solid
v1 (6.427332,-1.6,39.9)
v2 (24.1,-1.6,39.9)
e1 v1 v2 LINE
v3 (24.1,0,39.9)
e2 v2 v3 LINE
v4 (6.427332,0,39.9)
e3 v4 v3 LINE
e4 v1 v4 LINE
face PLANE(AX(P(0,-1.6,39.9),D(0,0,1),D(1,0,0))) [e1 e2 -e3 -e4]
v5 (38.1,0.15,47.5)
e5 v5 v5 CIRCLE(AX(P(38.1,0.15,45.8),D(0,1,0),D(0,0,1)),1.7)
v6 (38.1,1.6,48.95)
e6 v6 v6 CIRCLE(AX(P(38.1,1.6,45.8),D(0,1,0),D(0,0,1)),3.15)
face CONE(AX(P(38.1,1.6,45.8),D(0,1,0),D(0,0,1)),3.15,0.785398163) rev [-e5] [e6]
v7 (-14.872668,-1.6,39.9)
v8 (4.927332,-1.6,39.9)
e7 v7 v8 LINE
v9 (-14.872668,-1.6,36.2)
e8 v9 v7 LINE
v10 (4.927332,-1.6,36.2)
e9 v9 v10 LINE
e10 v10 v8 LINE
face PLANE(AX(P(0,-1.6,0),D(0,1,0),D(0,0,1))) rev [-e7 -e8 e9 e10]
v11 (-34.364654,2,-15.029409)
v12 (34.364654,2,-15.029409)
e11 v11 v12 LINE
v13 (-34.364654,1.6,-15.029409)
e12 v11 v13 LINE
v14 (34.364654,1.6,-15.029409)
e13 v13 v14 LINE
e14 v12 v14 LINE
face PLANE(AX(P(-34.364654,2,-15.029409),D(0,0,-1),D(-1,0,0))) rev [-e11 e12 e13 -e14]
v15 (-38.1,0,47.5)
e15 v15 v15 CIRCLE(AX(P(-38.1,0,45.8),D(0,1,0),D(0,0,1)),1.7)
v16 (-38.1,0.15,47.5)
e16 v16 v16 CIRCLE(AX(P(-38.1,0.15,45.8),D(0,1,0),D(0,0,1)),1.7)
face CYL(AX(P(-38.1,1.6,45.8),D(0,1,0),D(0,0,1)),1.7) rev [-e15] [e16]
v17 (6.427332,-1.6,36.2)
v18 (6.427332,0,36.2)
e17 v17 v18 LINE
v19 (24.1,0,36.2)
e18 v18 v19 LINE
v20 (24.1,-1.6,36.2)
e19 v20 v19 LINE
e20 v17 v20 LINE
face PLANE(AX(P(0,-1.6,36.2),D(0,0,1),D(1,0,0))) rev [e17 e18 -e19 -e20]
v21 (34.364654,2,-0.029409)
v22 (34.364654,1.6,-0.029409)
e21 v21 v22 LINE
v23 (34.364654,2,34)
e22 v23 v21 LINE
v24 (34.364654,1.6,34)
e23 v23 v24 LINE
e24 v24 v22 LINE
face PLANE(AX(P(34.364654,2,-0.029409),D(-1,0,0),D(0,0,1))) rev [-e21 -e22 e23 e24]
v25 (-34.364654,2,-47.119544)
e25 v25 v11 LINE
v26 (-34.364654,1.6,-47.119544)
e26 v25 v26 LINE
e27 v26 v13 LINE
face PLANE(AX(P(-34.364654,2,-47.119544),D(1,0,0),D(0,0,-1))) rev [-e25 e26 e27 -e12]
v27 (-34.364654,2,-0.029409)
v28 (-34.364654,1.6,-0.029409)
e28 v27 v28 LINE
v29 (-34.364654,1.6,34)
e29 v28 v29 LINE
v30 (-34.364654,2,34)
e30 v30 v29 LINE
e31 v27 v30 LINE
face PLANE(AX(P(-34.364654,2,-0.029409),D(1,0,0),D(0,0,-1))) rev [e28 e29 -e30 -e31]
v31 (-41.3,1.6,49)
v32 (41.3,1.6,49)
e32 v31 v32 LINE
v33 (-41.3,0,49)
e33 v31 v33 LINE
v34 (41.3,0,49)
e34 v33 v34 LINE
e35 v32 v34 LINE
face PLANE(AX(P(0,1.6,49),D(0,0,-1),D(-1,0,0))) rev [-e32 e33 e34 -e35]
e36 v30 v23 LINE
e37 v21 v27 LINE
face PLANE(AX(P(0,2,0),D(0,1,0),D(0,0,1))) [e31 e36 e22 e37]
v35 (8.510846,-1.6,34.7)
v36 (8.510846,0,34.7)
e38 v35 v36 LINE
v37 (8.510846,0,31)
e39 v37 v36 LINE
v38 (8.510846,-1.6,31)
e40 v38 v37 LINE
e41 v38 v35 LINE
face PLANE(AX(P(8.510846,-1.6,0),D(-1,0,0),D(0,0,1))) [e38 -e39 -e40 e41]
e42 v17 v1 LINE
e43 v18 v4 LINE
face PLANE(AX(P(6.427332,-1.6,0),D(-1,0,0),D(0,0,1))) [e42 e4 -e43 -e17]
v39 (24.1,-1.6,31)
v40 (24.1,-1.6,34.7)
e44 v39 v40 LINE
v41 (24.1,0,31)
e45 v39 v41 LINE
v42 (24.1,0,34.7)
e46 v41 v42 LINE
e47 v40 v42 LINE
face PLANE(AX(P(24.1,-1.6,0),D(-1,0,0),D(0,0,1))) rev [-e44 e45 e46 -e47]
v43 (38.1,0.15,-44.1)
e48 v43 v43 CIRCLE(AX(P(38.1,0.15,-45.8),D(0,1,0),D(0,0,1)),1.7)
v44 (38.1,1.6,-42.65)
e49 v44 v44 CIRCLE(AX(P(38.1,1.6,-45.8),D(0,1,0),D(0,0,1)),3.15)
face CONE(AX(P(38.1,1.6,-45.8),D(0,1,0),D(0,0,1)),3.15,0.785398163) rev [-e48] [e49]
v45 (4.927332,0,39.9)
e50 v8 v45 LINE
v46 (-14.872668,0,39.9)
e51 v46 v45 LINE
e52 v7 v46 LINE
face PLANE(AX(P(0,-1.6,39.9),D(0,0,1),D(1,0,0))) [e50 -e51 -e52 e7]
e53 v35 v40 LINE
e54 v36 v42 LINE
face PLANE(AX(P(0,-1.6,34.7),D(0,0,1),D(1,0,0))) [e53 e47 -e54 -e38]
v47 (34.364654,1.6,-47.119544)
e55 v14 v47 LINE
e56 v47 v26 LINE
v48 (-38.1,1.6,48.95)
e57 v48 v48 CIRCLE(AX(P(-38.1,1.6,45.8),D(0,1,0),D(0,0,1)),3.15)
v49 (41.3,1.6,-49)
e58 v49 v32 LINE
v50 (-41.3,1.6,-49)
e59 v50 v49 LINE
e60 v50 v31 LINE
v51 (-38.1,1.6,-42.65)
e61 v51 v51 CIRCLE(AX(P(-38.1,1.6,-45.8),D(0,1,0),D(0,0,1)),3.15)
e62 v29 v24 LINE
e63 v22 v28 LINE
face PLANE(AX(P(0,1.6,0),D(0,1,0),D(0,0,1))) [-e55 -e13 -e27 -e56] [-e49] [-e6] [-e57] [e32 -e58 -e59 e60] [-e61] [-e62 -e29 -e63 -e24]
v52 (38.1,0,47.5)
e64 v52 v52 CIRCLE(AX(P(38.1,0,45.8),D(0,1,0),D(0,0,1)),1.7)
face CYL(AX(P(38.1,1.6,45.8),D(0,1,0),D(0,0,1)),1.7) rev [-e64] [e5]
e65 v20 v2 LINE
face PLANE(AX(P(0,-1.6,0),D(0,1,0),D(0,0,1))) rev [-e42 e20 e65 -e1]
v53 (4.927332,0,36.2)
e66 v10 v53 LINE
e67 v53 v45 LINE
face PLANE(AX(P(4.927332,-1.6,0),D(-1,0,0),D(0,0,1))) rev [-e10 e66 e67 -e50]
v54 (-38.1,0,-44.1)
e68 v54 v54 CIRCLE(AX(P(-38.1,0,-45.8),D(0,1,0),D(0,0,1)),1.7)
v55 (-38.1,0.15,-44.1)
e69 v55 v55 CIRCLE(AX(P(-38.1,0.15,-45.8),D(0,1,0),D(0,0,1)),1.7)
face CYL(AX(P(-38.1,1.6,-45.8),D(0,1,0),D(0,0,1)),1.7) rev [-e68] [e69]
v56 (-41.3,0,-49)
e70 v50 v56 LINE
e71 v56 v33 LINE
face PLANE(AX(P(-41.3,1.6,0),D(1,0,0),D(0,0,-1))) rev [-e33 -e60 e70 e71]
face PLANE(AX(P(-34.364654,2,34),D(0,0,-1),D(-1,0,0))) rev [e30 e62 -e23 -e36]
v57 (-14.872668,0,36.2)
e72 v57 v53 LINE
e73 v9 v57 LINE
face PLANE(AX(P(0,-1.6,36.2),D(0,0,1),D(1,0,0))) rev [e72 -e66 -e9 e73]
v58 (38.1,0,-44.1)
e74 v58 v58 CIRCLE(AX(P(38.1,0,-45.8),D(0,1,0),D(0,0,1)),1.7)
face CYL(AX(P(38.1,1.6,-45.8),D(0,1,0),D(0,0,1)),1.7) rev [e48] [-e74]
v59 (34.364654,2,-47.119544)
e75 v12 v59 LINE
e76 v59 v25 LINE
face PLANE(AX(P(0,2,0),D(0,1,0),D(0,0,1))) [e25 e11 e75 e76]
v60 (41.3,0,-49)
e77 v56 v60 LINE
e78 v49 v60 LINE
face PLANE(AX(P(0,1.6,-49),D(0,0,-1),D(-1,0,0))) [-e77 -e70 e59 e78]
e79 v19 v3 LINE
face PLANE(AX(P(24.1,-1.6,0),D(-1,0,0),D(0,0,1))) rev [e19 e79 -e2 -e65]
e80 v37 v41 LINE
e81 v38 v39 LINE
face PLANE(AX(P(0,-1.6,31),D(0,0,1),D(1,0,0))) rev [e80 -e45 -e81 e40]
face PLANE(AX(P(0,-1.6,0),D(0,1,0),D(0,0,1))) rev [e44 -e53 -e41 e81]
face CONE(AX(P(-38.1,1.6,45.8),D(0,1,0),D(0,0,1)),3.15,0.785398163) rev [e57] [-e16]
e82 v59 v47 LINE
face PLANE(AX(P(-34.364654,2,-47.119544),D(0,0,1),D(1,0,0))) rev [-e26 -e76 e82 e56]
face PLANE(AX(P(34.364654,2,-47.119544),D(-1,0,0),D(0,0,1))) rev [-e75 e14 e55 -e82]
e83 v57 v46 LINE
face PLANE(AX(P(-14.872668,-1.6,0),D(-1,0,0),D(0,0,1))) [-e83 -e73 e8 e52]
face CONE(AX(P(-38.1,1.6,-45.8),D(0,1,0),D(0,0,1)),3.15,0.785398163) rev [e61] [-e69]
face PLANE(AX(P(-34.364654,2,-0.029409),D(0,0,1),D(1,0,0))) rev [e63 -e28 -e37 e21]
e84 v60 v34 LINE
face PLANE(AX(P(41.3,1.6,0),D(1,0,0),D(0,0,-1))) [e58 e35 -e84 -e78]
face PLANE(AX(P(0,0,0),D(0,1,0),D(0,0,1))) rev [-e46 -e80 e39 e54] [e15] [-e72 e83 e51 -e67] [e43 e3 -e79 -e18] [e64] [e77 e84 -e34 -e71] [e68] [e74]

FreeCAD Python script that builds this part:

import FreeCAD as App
import Part
import Sketcher
from FreeCAD import Vector

doc = App.newDocument("Part")
body = doc.addObject("PartDesign::Body", "Body")

# Sketch on XZ plane
sketch1 = body.newObject("Sketcher::SketchObject", "Sketch")
sketch1.AttachmentSupport = (doc.getObject("XZ_Plane"), [""])
sketch1.MapMode = "FlatFace"
sketch1.addGeometry([
    Part.LineSegment(Vector(-41.3, -49, 0), Vector(-41.3, 49, 0)),  # 0
    Part.LineSegment(Vector(-41.3, 49, 0), Vector(41.3, 49, 0)),  # 1
    Part.LineSegment(Vector(41.3, 49, 0), Vector(41.3, -49, 0)),  # 2
    Part.LineSegment(Vector(41.3, -49, 0), Vector(-41.3, -49, 0)),  # 3
    Part.Circle(Vector(-38.1, 45.8, 0), Vector(0, 0, 1), 1.6),  # 4
    Part.Circle(Vector(38.1, 45.8, 0), Vector(0, 0, 1), 1.6),  # 5
    Part.Circle(Vector(-38.1, -45.8, 0), Vector(0, 0, 1), 1.6),  # 6
    Part.Circle(Vector(38.1, -45.8, 0), Vector(0, 0, 1), 1.6),  # 7
], False)
sketch1.addConstraint([
    Sketcher.Constraint("Coincident", 0, 2, 1, 1),
    Sketcher.Constraint("Coincident", 1, 2, 2, 1),
    Sketcher.Constraint("Coincident", 2, 2, 3, 1),
    Sketcher.Constraint("Coincident", 3, 2, 0, 1),
    Sketcher.Constraint("Vertical", 0),
    Sketcher.Constraint("Horizontal", 1),
    Sketcher.Constraint("Vertical", 2),
    Sketcher.Constraint("Horizontal", 3),
    Sketcher.Constraint("Equal", 4, 5),
    Sketcher.Constraint("Equal", 5, 6),
    Sketcher.Constraint("Equal", 6, 7),
    Sketcher.Constraint("Symmetric", 5, 3, 6, 3, -1, 1),
    Sketcher.Constraint("Symmetric", 4, 3, 7, 3, -1, 1),
    Sketcher.Constraint("Symmetric", 0, 2, 2, 2, -1, 1),
    Sketcher.Constraint("Symmetric", 4, 3, 5, 3, -2),
    Sketcher.Constraint("Diameter", 4, 3.2),
    Sketcher.Constraint("DistanceY", 0, 1, 0, 2, 98.0),
    Sketcher.Constraint("DistanceX", 1, 1, 1, 2, 82.6),
    Sketcher.Constraint("DistanceX", 4, 3, -1, 1, 38.1),
    Sketcher.Constraint("DistanceY", -1, 1, 4, 3, 45.8),
])
pad1 = body.newObject("PartDesign::Pad", "Pad")
pad1.Profile = sketch1
pad1.Length = 1.6
pad1.Reversed = True

# Sketch on XZ plane
sketch2 = body.newObject("Sketcher::SketchObject", "Sketch001")
sketch2.AttachmentSupport = (doc.getObject("XZ_Plane"), [""])
sketch2.MapMode = "FlatFace"
sketch2.addGeometry([
    Part.LineSegment(Vector(6.4, 36.2, 0), Vector(6.4, 39.9, 0)),  # 0
    Part.LineSegment(Vector(6.4, 39.9, 0), Vector(24.1, 39.9, 0)),  # 1
    Part.LineSegment(Vector(24.1, 39.9, 0), Vector(24.1, 36.2, 0)),  # 2
    Part.LineSegment(Vector(24.1, 36.2, 0), Vector(6.4, 36.2, 0)),  # 3
    Part.LineSegment(Vector(8.5, 31, 0), Vector(8.5, 34.7, 0)),  # 4
    Part.LineSegment(Vector(8.5, 34.7, 0), Vector(24.1, 34.7, 0)),  # 5
    Part.LineSegment(Vector(24.1, 34.7, 0), Vector(24.1, 31, 0)),  # 6
    Part.LineSegment(Vector(24.1, 31, 0), Vector(8.5, 31, 0)),  # 7
    Part.LineSegment(Vector(-14.9, 36.2, 0), Vector(-14.9, 39.9, 0)),  # 8
    Part.LineSegment(Vector(-14.9, 39.9, 0), Vector(4.9, 39.9, 0)),  # 9
    Part.LineSegment(Vector(4.9, 39.9, 0), Vector(4.9, 36.2, 0)),  # 10
    Part.LineSegment(Vector(4.9, 36.2, 0), Vector(-14.9, 36.2, 0)),  # 11
], False)
sketch2.addConstraint([
    Sketcher.Constraint("Coincident", 0, 2, 1, 1),
    Sketcher.Constraint("Coincident", 1, 2, 2, 1),
    Sketcher.Constraint("Coincident", 2, 2, 3, 1),
    Sketcher.Constraint("Coincident", 3, 2, 0, 1),
    Sketcher.Constraint("Coincident", 4, 2, 5, 1),
    Sketcher.Constraint("Coincident", 5, 2, 6, 1),
    Sketcher.Constraint("Coincident", 6, 2, 7, 1),
    Sketcher.Constraint("Coincident", 7, 2, 4, 1),
    Sketcher.Constraint("Coincident", 8, 2, 9, 1),
    Sketcher.Constraint("Coincident", 9, 2, 10, 1),
    Sketcher.Constraint("Coincident", 10, 2, 11, 1),
    Sketcher.Constraint("Coincident", 11, 2, 8, 1),
    Sketcher.Constraint("Vertical", 0),
    Sketcher.Constraint("Horizontal", 1),
    Sketcher.Constraint("Vertical", 2),
    Sketcher.Constraint("Horizontal", 3),
    Sketcher.Constraint("Vertical", 4),
    Sketcher.Constraint("Horizontal", 5),
    Sketcher.Constraint("Vertical", 6),
    Sketcher.Constraint("Horizontal", 7),
    Sketcher.Constraint("Vertical", 8),
    Sketcher.Constraint("Horizontal", 9),
    Sketcher.Constraint("Vertical", 10),
    Sketcher.Constraint("Horizontal", 11),
    Sketcher.Constraint("Horizontal", 1, 2, 8, 2),
    Sketcher.Constraint("Horizontal", 3, 2, 10, 2),
    Sketcher.Constraint("Vertical", 2, 2, 5, 2),
    Sketcher.Constraint("Equal", 2, 4),
    Sketcher.Constraint("DistanceX", 9, 1, 9, 2, 19.8),
    Sketcher.Constraint("DistanceY", 0, 1, 0, 2, 3.7),
    Sketcher.Constraint("DistanceY", -1, 1, 6, 2, 31.0),
    Sketcher.Constraint("DistanceY", -1, 1, 0, 2, 39.9),
    Sketcher.Constraint("DistanceX", -1, 1, 1, 2, 24.1),
    Sketcher.Constraint("DistanceX", 8, 2, 0, 2, 21.3),
    Sketcher.Constraint("DistanceX", 1, 1, 1, 2, 17.672668),
    Sketcher.Constraint("DistanceX", 5, 1, 5, 2, 15.589154),
])
pad2 = body.newObject("PartDesign::Pad", "Pad001")
pad2.Profile = sketch2
pad2.Length = 1.6

# Sketch on XZ plane
sketch3 = body.newObject("Sketcher::SketchObject", "Sketch002")
sketch3.AttachmentSupport = (doc.getObject("XZ_Plane"), [""])
sketch3.MapMode = "FlatFace"
sketch3.AttachmentOffset = App.Placement(Vector(0, 0, -1.6), App.Rotation())
sketch3.addGeometry([
    Part.LineSegment(Vector(-34, -47, 0), Vector(-34, -15, 0)),  # 0
    Part.LineSegment(Vector(-34, -15, 0), Vector(34, -15, 0)),  # 1
    Part.LineSegment(Vector(34, -15, 0), Vector(34, -47, 0)),  # 2
    Part.LineSegment(Vector(34, -47, 0), Vector(-34, -47, 0)),  # 3
    Part.LineSegment(Vector(-34, 0, 0), Vector(-34, 34, 0)),  # 4
    Part.LineSegment(Vector(-34, 34, 0), Vector(34, 34, 0)),  # 5
    Part.LineSegment(Vector(34, 34, 0), Vector(34, 0, 0)),  # 6
    Part.LineSegment(Vector(34, 0, 0), Vector(-34, 0, 0)),  # 7
], False)
sketch3.addConstraint([
    Sketcher.Constraint("Coincident", 0, 2, 1, 1),
    Sketcher.Constraint("Coincident", 1, 2, 2, 1),
    Sketcher.Constraint("Coincident", 2, 2, 3, 1),
    Sketcher.Constraint("Coincident", 3, 2, 0, 1),
    Sketcher.Constraint("Coincident", 4, 2, 5, 1),
    Sketcher.Constraint("Coincident", 5, 2, 6, 1),
    Sketcher.Constraint("Coincident", 6, 2, 7, 1),
    Sketcher.Constraint("Coincident", 7, 2, 4, 1),
    Sketcher.Constraint("Vertical", 0),
    Sketcher.Constraint("Horizontal", 1),
    Sketcher.Constraint("Vertical", 2),
    Sketcher.Constraint("Horizontal", 3),
    Sketcher.Constraint("Vertical", 4),
    Sketcher.Constraint("Horizontal", 5),
    Sketcher.Constraint("Vertical", 6),
    Sketcher.Constraint("Horizontal", 7),
    Sketcher.Constraint("Vertical", 3, 2, 4, 2),
    Sketcher.Constraint("Vertical", 2, 2, 5, 2),
    Sketcher.Constraint("DistanceY", -1, 1, 4, 2, 34.0),
    Sketcher.Constraint("DistanceY", 1, 2, 6, 2, 15.0),
    Sketcher.Constraint("DistanceX", 1, 1, 1, 2, 68.729309),
    Sketcher.Constraint("DistanceY", 4, 1, 4, 2, 34.029409),
    Sketcher.Constraint("DistanceY", 0, 1, 0, 2, 32.090135),
    Sketcher.Constraint("DistanceX", 0, 2, -1, 1, 34.364654),
])
pad3 = body.newObject("PartDesign::Pad", "Pad002")
pad3.Profile = sketch3
pad3.Length = 0.4
pad3.Reversed = True

# Sketch on XZ plane
sketch4 = body.newObject("Sketcher::SketchObject", "Sketch003")
sketch4.AttachmentSupport = (doc.getObject("XZ_Plane"), [""])
sketch4.MapMode = "FlatFace"
sketch4.AttachmentOffset = App.Placement(Vector(0, 0, -1.6), App.Rotation())
sketch4.addGeometry([
    Part.Circle(Vector(-38.1, -45.8, 0), Vector(0, 0, 1), 1.7),
    Part.Circle(Vector(38.1, -45.8, 0), Vector(0, 0, 1), 1.7),
    Part.Circle(Vector(38.1, 45.8, 0), Vector(0, 0, 1), 1.7),
    Part.Circle(Vector(-38.1, 45.8, 0), Vector(0, 0, 1), 1.7),
], False)
sketch4.addConstraint([
    Sketcher.Constraint("Equal", 0, 1),
    Sketcher.Constraint("Equal", 1, 2),
    Sketcher.Constraint("Equal", 2, 3),
    Sketcher.Constraint("Symmetric", 0, 3, 2, 3, -1, 1),
    Sketcher.Constraint("Symmetric", 1, 3, 3, 3, -1, 1),
    Sketcher.Constraint("Symmetric", 0, 3, 1, 3, -2),
    Sketcher.Constraint("Diameter", 0, 3.4),
    Sketcher.Constraint("DistanceX", 0, 3, -1, 1, 38.1),
    Sketcher.Constraint("DistanceY", 0, 3, -1, 1, 45.8),
])
doc.recompute()
hole = body.newObject("PartDesign::Hole", "Hole")
hole.Profile = sketch4
hole.ThreadType = "None"
hole.Diameter = 3.4
hole.DepthType = "Dimension"
hole.Depth = 3.15
hole.DrillPoint = "Angled"
hole.DrillPointAngle = 118
hole.HoleCutType = "Countersink"
hole.HoleCutDiameter = 6.3
hole.HoleCutCountersinkAngle = 90
hole.Reversed = True

doc.recompute()
